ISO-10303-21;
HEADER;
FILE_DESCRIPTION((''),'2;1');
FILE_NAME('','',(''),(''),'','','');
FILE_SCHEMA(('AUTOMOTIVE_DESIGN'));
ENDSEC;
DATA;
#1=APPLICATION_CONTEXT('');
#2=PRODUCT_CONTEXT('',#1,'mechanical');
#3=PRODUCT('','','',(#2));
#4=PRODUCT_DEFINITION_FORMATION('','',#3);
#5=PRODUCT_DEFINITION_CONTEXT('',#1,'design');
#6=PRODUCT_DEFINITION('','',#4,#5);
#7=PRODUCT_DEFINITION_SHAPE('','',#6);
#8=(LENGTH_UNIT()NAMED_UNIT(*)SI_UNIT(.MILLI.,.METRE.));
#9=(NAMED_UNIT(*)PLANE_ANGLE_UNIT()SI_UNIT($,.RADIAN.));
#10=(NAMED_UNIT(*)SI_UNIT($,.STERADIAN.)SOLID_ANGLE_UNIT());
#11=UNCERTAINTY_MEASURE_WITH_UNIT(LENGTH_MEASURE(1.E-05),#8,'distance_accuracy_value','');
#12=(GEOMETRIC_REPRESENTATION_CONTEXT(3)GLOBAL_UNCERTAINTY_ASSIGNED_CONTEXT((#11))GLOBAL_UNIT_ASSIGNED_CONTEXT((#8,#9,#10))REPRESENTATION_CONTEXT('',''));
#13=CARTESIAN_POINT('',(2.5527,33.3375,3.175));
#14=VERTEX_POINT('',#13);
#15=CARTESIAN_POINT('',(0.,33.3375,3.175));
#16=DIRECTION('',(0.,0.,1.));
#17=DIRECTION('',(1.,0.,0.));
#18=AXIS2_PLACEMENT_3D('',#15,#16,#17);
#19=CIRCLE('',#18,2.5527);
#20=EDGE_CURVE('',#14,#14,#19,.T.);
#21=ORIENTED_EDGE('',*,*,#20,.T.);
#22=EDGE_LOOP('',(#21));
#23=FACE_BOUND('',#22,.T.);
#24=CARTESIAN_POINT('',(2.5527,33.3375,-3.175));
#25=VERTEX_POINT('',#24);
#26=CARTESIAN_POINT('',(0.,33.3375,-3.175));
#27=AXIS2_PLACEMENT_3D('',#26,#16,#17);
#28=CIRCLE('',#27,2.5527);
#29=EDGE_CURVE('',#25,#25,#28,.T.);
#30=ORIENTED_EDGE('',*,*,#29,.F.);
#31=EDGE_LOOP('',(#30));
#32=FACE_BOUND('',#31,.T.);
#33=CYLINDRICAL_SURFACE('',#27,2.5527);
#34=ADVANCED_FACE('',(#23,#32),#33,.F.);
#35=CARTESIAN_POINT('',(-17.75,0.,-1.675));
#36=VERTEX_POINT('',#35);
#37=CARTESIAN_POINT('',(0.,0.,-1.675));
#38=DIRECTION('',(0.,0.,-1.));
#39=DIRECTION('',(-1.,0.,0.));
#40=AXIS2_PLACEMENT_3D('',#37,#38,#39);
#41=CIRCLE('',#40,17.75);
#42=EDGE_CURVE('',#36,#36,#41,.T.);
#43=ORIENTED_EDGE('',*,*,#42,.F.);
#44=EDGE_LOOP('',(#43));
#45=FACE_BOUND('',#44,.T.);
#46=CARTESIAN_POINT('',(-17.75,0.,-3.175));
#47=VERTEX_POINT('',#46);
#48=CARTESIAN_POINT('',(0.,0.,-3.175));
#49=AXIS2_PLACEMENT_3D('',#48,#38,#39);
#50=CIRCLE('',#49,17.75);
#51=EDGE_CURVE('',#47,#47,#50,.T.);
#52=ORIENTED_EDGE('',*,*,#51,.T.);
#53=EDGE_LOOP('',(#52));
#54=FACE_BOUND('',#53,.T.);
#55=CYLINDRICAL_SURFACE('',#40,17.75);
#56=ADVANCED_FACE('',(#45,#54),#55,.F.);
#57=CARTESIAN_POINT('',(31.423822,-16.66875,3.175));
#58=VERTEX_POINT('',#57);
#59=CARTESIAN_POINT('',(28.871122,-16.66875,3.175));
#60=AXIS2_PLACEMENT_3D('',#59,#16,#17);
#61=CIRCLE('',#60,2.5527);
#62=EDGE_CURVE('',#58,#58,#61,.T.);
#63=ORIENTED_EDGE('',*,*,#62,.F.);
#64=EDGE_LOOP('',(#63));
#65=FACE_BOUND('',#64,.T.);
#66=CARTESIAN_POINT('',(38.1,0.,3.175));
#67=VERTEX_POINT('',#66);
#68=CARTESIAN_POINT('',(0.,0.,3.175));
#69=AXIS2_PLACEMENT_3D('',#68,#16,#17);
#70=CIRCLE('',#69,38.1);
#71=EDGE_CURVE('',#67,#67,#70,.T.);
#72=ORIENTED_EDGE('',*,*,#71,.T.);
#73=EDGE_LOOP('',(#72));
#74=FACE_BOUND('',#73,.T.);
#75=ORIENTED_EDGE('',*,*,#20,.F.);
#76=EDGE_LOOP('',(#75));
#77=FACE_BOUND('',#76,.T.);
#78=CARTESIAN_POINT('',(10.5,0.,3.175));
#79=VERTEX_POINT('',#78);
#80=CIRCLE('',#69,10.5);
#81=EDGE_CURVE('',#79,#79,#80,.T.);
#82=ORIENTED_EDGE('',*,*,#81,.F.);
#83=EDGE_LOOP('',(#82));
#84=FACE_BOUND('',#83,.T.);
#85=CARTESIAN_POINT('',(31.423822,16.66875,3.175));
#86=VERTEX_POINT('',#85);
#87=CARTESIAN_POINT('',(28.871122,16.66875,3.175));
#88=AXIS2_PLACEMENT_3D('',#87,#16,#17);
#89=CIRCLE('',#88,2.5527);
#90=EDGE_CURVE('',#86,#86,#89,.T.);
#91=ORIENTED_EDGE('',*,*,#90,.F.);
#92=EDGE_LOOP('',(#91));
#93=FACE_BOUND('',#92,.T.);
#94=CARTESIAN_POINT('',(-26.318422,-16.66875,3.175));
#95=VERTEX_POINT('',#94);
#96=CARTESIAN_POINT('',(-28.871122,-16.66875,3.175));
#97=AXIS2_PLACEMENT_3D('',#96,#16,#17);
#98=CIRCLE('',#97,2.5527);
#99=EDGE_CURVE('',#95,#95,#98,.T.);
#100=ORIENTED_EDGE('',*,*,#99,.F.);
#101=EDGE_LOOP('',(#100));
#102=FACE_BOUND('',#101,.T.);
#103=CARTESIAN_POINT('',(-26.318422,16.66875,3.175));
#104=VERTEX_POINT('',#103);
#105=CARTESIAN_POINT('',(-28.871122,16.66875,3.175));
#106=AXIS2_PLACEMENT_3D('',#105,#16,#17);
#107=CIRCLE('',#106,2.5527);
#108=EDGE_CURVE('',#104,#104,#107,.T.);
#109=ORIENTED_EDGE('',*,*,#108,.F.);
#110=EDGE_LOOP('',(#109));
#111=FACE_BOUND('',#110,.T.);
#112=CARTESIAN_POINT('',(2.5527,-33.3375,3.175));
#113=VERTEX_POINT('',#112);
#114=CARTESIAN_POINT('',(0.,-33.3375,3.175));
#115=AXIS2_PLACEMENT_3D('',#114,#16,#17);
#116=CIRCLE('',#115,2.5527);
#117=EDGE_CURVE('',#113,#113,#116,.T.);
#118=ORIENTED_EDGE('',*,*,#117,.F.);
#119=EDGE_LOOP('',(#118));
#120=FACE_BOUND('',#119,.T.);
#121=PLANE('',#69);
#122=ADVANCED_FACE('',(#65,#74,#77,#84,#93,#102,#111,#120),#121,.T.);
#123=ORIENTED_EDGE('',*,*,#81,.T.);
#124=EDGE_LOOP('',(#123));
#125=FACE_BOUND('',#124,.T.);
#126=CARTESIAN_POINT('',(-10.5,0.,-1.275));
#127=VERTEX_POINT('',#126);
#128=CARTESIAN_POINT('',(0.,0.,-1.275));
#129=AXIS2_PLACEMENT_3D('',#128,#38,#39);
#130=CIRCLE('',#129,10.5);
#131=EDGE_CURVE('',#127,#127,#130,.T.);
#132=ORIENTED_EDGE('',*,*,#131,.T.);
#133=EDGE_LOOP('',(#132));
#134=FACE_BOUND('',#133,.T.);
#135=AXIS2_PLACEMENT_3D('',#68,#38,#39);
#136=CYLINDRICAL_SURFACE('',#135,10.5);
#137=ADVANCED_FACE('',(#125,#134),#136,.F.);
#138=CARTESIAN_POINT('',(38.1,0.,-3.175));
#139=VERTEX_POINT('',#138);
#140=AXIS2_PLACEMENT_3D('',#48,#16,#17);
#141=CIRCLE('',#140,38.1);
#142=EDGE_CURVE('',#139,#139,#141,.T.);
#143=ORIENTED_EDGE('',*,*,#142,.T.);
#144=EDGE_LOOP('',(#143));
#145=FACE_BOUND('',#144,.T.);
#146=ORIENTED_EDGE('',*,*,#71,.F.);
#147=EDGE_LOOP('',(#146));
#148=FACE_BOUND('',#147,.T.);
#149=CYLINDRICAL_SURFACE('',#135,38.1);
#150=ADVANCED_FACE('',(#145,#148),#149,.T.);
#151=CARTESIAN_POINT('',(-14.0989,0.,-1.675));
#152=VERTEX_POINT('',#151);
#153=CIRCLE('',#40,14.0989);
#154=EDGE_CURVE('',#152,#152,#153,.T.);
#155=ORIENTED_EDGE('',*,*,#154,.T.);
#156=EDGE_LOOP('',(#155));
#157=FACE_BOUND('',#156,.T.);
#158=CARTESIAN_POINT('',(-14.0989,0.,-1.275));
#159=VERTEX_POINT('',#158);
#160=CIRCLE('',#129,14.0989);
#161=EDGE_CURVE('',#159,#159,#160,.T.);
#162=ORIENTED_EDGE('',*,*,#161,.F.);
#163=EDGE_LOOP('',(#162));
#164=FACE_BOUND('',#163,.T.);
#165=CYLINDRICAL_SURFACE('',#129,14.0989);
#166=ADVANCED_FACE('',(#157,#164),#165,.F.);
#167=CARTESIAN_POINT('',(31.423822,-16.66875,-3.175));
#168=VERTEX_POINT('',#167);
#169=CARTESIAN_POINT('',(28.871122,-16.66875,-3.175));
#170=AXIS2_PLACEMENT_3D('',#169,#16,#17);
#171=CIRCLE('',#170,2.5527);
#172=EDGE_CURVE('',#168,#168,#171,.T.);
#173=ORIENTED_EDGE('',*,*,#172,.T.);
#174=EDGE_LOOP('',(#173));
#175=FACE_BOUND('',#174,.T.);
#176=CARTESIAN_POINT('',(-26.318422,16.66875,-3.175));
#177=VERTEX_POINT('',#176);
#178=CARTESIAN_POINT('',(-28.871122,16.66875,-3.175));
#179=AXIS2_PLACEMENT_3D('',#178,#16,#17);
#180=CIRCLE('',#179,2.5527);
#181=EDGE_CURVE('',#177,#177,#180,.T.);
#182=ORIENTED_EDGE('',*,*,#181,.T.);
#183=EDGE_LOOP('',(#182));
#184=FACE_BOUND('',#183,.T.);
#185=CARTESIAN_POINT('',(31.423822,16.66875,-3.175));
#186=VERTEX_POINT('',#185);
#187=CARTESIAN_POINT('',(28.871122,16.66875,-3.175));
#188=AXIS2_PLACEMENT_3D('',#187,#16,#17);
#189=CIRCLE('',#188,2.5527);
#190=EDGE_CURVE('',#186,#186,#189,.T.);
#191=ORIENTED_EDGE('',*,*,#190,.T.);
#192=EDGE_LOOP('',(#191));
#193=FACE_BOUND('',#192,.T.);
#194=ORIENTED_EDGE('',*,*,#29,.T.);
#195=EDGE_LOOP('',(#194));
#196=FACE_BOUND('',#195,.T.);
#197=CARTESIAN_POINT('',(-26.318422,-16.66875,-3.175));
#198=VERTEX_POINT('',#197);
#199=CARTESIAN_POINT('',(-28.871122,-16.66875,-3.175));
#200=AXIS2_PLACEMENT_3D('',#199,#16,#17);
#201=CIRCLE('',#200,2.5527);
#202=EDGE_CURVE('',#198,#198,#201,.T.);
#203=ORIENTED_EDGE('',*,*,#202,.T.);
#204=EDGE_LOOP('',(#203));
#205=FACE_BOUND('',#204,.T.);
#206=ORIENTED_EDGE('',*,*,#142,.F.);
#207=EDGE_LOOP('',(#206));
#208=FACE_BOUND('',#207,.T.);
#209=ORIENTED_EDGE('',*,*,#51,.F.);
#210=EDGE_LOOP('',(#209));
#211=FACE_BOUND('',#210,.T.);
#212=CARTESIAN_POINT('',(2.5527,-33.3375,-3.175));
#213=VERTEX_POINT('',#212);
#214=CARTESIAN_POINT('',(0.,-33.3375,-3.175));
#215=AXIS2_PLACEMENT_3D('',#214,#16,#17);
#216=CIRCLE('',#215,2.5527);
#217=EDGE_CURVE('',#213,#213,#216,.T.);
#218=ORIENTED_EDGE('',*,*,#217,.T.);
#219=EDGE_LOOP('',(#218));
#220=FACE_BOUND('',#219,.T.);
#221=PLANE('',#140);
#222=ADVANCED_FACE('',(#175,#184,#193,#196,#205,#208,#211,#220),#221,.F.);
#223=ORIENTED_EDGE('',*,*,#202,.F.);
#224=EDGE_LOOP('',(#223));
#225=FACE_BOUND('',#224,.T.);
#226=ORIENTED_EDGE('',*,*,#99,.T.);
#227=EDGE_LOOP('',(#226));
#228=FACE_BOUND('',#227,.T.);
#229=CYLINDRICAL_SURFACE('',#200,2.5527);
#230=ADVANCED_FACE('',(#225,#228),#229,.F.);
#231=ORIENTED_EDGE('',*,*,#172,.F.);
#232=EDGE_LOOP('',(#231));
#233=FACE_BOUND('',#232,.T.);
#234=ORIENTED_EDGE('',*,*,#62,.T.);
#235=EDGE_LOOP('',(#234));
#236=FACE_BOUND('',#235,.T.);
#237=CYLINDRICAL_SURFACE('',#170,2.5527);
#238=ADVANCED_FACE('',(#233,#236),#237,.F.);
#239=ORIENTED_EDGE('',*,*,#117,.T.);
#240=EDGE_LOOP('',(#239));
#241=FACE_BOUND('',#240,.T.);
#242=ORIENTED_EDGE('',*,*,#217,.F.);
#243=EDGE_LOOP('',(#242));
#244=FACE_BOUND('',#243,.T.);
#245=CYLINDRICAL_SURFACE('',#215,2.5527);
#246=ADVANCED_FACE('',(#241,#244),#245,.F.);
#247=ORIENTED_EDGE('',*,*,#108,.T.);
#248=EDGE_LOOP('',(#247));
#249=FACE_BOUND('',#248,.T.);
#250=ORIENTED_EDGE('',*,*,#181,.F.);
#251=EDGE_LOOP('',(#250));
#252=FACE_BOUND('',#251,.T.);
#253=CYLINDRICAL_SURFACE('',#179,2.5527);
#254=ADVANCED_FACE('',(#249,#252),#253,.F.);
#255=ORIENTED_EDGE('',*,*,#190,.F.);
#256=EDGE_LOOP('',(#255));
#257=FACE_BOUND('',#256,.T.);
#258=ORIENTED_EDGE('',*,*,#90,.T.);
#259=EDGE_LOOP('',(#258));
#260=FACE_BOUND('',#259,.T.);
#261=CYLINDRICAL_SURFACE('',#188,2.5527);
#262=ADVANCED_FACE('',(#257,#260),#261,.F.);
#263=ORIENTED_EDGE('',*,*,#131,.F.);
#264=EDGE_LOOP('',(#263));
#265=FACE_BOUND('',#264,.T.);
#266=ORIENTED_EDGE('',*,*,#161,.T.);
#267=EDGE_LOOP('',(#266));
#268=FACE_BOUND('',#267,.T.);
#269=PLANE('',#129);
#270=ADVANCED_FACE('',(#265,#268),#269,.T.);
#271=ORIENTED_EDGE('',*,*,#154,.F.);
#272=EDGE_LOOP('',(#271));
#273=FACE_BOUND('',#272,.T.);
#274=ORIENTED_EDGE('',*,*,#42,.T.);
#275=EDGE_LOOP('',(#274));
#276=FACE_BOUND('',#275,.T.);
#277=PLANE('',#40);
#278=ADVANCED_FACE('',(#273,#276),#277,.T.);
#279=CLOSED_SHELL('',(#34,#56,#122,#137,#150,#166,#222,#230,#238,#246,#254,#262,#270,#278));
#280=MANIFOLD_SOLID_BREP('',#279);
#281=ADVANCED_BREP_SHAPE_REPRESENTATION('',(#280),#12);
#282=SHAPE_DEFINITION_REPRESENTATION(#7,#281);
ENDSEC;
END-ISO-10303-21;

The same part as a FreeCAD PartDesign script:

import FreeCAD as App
import Part
import Sketcher

doc = App.newDocument("Part")
body = doc.addObject("PartDesign::Body", "Body")

# Sketch on XY plane
sketch1 = body.newObject("Sketcher::SketchObject", "Sketch")
sketch1.AttachmentSupport = (doc.getObject("XY_Plane"), [""])
sketch1.MapMode = "FlatFace"
sketch1.addGeometry(Part.Circle(App.Vector(0, 0, 0), App.Vector(0, 0, 1), 38), False)
sketch1.addGeometry(Part.Circle(App.Vector(0, 0, 0), App.Vector(0, 0, 1), 10), False)
sketch1.addConstraint(Sketcher.Constraint("Coincident", 0, 3, -1, 1))
sketch1.addConstraint(Sketcher.Constraint("Coincident", 1, 3, -1, 1))
sketch1.addConstraint(Sketcher.Constraint("Diameter", 1, 21.0))
sketch1.addConstraint(Sketcher.Constraint("Diameter", 0, 76.2))
pad1 = body.newObject("PartDesign::Pad", "Pad")
pad1.Profile = sketch1
pad1.Length = 6.35
pad1.Midplane = True

# Sketch on XY plane
sketch2 = body.newObject("Sketcher::SketchObject", "Sketch001")
sketch2.AttachmentSupport = (doc.getObject("XY_Plane"), [""])
sketch2.MapMode = "FlatFace"
sketch2.AttachmentOffset = App.Placement(App.Vector(0, 0, -3.175), App.Rotation())
sketch2.addGeometry(Part.Circle(App.Vector(0, 0, 0), App.Vector(0, 0, 1), 18), False)
sketch2.addConstraint(Sketcher.Constraint("Coincident", 0, 3, -1, 1))
sketch2.addConstraint(Sketcher.Constraint("Diameter", 0, 35.5))
pocket1 = body.newObject("PartDesign::Pocket", "Pocket")
pocket1.Profile = sketch2
pocket1.Length = 1.5
pocket1.Reversed = True

# Sketch on XY plane
sketch3 = body.newObject("Sketcher::SketchObject", "Sketch002")
sketch3.AttachmentSupport = (doc.getObject("XY_Plane"), [""])
sketch3.MapMode = "FlatFace"
sketch3.AttachmentOffset = App.Placement(App.Vector(0, 0, 3.175), App.Rotation())
sketch3.addGeometry(Part.Circle(App.Vector(-28.9, 16.7, 0), App.Vector(0, 0, 1), 2.6), False)
sketch3.addGeometry(Part.Circle(App.Vector(0, 33.3, 0), App.Vector(0, 0, 1), 2.6), False)
sketch3.addGeometry(Part.Circle(App.Vector(28.9, 16.7, 0), App.Vector(0, 0, 1), 2.6), False)
sketch3.addGeometry(Part.Circle(App.Vector(28.9, -16.7, 0), App.Vector(0, 0, 1), 2.6), False)
sketch3.addGeometry(Part.Circle(App.Vector(0, -33.3, 0), App.Vector(0, 0, 1), 2.6), False)
sketch3.addGeometry(Part.Circle(App.Vector(-28.9, -16.7, 0), App.Vector(0, 0, 1), 2.6), False)
sketch3.addConstraint(Sketcher.Constraint("Equal", 0, 1))
sketch3.addConstraint(Sketcher.Constraint("Equal", 1, 2))
sketch3.addConstraint(Sketcher.Constraint("Equal", 2, 3))
sketch3.addConstraint(Sketcher.Constraint("Equal", 3, 4))
sketch3.addConstraint(Sketcher.Constraint("Equal", 4, 5))
sketch3.addConstraint(Sketcher.Constraint("Symmetric", 0, 3, 3, 3, -1, 1))
sketch3.addConstraint(Sketcher.Constraint("Symmetric", 1, 3, 4, 3, -1, 1))
sketch3.addConstraint(Sketcher.Constraint("Symmetric", 2, 3, 5, 3, -1, 1))
sketch3.addConstraint(Sketcher.Constraint("Symmetric", 0, 3, 2, 3, -2))
sketch3.addConstraint(Sketcher.Constraint("PointOnObject", 1, 3, -2))
sketch3.addConstraint(Sketcher.Constraint("Diameter", 0, 5.1054))
sketch3.addConstraint(Sketcher.Constraint("DistanceY", 4, 3, 1, 3, 66.675))
sketch3.addConstraint(Sketcher.Constraint("DistanceY", 3, 3, 2, 3, 33.3375))
sketch3.addConstraint(Sketcher.Constraint("DistanceX", 0, 3, -1, 1, 28.871122))
pocket2 = body.newObject("PartDesign::Pocket", "Pocket001")
pocket2.Profile = sketch3
pocket2.Type = "ThroughAll"

# Sketch on XY plane
sketch4 = body.newObject("Sketcher::SketchObject", "Sketch003")
sketch4.AttachmentSupport = (doc.getObject("XY_Plane"), [""])
sketch4.MapMode = "FlatFace"
sketch4.AttachmentOffset = App.Placement(App.Vector(0, 0, -1.675), App.Rotation())
sketch4.addGeometry(Part.Circle(App.Vector(0, 0, 0), App.Vector(0, 0, 1), 14), False)
sketch4.addConstraint(Sketcher.Constraint("Coincident", 0, 3, -1, 1))
sketch4.addConstraint(Sketcher.Constraint("Diameter", 0, 28.1978))
pocket3 = body.newObject("PartDesign::Pocket", "Pocket002")
pocket3.Profile = sketch4
pocket3.Length = 0.4
pocket3.Reversed = True

doc.recompute()
